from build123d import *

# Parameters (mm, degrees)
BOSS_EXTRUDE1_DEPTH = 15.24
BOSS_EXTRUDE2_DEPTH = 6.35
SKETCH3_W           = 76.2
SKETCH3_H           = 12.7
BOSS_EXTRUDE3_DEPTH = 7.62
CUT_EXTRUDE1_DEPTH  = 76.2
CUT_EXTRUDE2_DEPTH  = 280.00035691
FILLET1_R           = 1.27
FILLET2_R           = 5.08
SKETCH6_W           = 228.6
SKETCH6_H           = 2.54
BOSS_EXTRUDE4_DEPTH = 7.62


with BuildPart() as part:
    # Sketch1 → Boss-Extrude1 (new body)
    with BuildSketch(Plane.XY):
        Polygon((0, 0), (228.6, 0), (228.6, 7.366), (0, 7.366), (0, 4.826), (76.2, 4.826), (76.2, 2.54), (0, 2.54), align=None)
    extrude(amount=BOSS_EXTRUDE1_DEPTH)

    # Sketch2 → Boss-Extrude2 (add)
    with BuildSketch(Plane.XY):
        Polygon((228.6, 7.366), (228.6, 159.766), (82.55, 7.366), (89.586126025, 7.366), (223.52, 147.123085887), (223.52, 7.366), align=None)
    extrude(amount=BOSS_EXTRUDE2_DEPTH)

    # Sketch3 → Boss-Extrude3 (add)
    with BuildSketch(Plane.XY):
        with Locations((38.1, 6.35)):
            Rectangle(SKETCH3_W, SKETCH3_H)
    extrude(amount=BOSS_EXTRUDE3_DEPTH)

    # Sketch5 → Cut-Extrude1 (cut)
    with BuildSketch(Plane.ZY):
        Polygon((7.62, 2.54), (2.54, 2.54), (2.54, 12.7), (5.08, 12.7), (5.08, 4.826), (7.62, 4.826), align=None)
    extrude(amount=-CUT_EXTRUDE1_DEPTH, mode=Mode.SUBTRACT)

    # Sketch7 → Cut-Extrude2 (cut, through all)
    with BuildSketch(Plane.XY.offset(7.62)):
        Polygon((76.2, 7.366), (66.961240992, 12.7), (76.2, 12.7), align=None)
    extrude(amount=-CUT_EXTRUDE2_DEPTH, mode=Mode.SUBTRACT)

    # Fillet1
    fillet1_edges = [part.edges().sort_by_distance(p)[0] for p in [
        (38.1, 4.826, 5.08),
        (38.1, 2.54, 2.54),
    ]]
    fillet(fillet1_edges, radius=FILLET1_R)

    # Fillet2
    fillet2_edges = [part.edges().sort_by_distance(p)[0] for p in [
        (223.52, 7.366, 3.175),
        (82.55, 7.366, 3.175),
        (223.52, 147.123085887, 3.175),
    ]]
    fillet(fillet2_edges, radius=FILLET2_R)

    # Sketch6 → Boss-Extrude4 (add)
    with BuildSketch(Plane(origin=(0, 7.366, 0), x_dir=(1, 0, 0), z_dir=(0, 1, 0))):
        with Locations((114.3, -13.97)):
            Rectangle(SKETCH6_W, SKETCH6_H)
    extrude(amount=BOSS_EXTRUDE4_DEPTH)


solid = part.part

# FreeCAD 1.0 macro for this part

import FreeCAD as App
import Part
import Sketcher
Q = App.Units.Quantity


def edges_at(feature, points):
    """Names of the edges that pass closest to the given points."""
    edges = feature.Shape.Edges
    near = lambda p: min(range(len(edges)), key=lambda i: edges[i].distToShape(Part.Vertex(*p))[0])
    return sorted({f"Edge{near(p) + 1}" for p in points})


def add_polygon(sketch, points):
    """Adds a closed chain of lines whose ends are joined by coincident constraints."""
    first, n = sketch.GeometryCount, len(points)
    for a, b in zip(points, points[1:] + points[:1]):
        sketch.addGeometry(Part.LineSegment(App.Vector(*a, 0), App.Vector(*b, 0)), False)
    for i in range(n):
        sketch.addConstraint(Sketcher.Constraint("Coincident", first + i, 2, first + (i + 1) % n, 1))

doc = App.newDocument("Part")
body = doc.addObject("PartDesign::Body", "Body")

sketch1 = body.newObject("Sketcher::SketchObject", "Sketch")
sketch1.AttachmentSupport = (doc.getObject("XY_Plane"), [""])
sketch1.MapMode = "FlatFace"
add_polygon(sketch1, [(0, 0), (228.6, 0), (228.6, 7.4), (0, 7.4), (0, 4.8), (76.2, 4.8), (76.2, 2.5), (0, 2.5)])
sketch1.addConstraint([
    Sketcher.Constraint("Horizontal", 0),
    Sketcher.Constraint("Vertical", 1),
    Sketcher.Constraint("Horizontal", 2),
    Sketcher.Constraint("Vertical", 3),
    Sketcher.Constraint("Horizontal", 4),
    Sketcher.Constraint("Vertical", 5),
    Sketcher.Constraint("Horizontal", 6),
    Sketcher.Constraint("Vertical", 7),
    Sketcher.Constraint("Coincident", 7, 2, -1, 1),
    Sketcher.Constraint("PointOnObject", 2, 2, -2),
    Sketcher.Constraint("Equal", 3, 7),
    Sketcher.Constraint("DistanceX", 0, 1, 0, 2, Q("9 in")),
    Sketcher.Constraint("DistanceX", 4, 1, 4, 2, Q("3 in")),
    Sketcher.Constraint("DistanceY", 3, 2, 3, 1, Q("0.1 in")),
    Sketcher.Constraint("DistanceY", 1, 1, 1, 2, Q("0.29 in")),
])
pad1 = body.newObject("PartDesign::Pad", "Pad")
pad1.Profile = sketch1
pad1.Length = Q("0.6 in")

sketch2 = body.newObject("Sketcher::SketchObject", "Sketch001")
sketch2.AttachmentSupport = (doc.getObject("XY_Plane"), [""])
sketch2.MapMode = "FlatFace"
add_polygon(sketch2, [(229, 7), (229, 160), (83, 7), (90, 7), (224, 147), (224, 7)])
sketch2.addConstraint([
    Sketcher.Constraint("Vertical", 0),
    Sketcher.Constraint("Horizontal", 2),
    Sketcher.Constraint("Vertical", 4),
    Sketcher.Constraint("Horizontal", 5),
    Sketcher.Constraint("Parallel", 1, 3),
    Sketcher.Constraint("Horizontal", 2, 2, 4, 2),
    Sketcher.Constraint("DistanceY", 0, 1, 0, 2, Q("6 in")),
    Sketcher.Constraint("DistanceX", 5, 1, 5, 2, Q("0.2 in")),
    Sketcher.Constraint("DistanceX", -1, 1, 0, 2, Q("9 in")),
    Sketcher.Constraint("DistanceY", -1, 1, 0, 2, Q("6.29 in")),
    Sketcher.Constraint("DistanceX", -1, 1, 1, 2, Q("3.25 in")),
    Sketcher.Constraint("DistanceX", 2, 1, 2, 2, 7.036126),
])
pad2 = body.newObject("PartDesign::Pad", "Pad001")
pad2.Profile = sketch2
pad2.Length = Q("0.25 in")

sketch3 = body.newObject("Sketcher::SketchObject", "Sketch002")
sketch3.AttachmentSupport = (doc.getObject("XY_Plane"), [""])
sketch3.MapMode = "FlatFace"
add_polygon(sketch3, [(0, 13), (0, 0), (76, 0), (76, 13)])
sketch3.addConstraint([
    Sketcher.Constraint("Vertical", 0),
    Sketcher.Constraint("Horizontal", 1),
    Sketcher.Constraint("Vertical", 2),
    Sketcher.Constraint("Horizontal", 3),
    Sketcher.Constraint("Coincident", 0, 2, -1, 1),
    Sketcher.Constraint("DistanceX", 1, 1, 1, 2, Q("3 in")),
    Sketcher.Constraint("DistanceY", 0, 2, 0, 1, Q("0.5 in")),
])
pad3 = body.newObject("PartDesign::Pad", "Pad002")
pad3.Profile = sketch3
pad3.Length = Q("0.3 in")

sketch4 = body.newObject("Sketcher::SketchObject", "Sketch003")
sketch4.AttachmentSupport = (doc.getObject("YZ_Plane"), [""])
sketch4.MapMode = "FlatFace"
add_polygon(sketch4, [(2.5, 2.5), (2.5, 7.6), (4.8, 7.6), (4.8, 5.1), (12.7, 5.1), (12.7, 2.5)])
sketch4.addConstraint([
    Sketcher.Constraint("Vertical", 0),
    Sketcher.Constraint("Horizontal", 1),
    Sketcher.Constraint("Vertical", 2),
    Sketcher.Constraint("Horizontal", 3),
    Sketcher.Constraint("Vertical", 4),
    Sketcher.Constraint("Horizontal", 5),
    Sketcher.Constraint("Equal", 2, 4),
    Sketcher.Constraint("DistanceX", 5, 2, 5, 1, Q("0.4 in")),
    Sketcher.Constraint("DistanceY", 0, 1, 0, 2, Q("0.2 in")),
    Sketcher.Constraint("DistanceX", 1, 1, 1, 2, Q("0.09 in")),
    Sketcher.Constraint("DistanceX", -1, 1, 0, 2, Q("0.1 in")),
    Sketcher.Constraint("DistanceY", -1, 1, 0, 2, Q("0.3 in")),
])
pocket1 = body.newObject("PartDesign::Pocket", "Pocket")
pocket1.Profile = sketch4
pocket1.Length = Q("3 in")
pocket1.Reversed = True

sketch5 = body.newObject("Sketcher::SketchObject", "Sketch004")
sketch5.AttachmentSupport = (doc.getObject("XY_Plane"), [""])
sketch5.MapMode = "FlatFace"
sketch5.AttachmentOffset = App.Placement(App.Vector(0, 0, 0.3 * 25.4), App.Rotation())
add_polygon(sketch5, [(67, 13), (76, 7), (76, 13)])
sketch5.addConstraint([
    Sketcher.Constraint("Vertical", 1),
    Sketcher.Constraint("Horizontal", 2),
    Sketcher.Constraint("DistanceX", -1, 1, 0, 2, Q("3 in")),
    Sketcher.Constraint("Angle", 0, Q("-30 deg")),
    Sketcher.Constraint("DistanceY", 1, 1, 1, 2, Q("0.21 in")),
    Sketcher.Constraint("DistanceY", -1, 1, 1, 2, Q("0.5 in")),
])
pocket2 = body.newObject("PartDesign::Pocket", "Pocket001")
pocket2.Profile = sketch5
pocket2.Type = "ThroughAll"
doc.recompute()

fillet = body.newObject("PartDesign::Fillet", "Fillet")
fillet.Base = (pocket2, edges_at(pocket2, [(38.1, 4.826, 5.08), (38.1, 2.54, 2.54)]))
fillet.Radius = Q("0.05 in")
doc.recompute()

fillet2 = body.newObject("PartDesign::Fillet", "Fillet001")
fillet2.Base = (fillet, edges_at(fillet, [(223.52, 7.366, 3.175), (82.55, 7.366, 3.175), (223.52, 147.123, 3.175)]))
fillet2.Radius = Q("0.2 in")

sketch6 = body.newObject("Sketcher::SketchObject", "Sketch005")
sketch6.AttachmentSupport = (doc.getObject("XZ_Plane"), [""])
sketch6.MapMode = "FlatFace"
sketch6.AttachmentOffset = App.Placement(App.Vector(0, 0, -0.29 * 25.4), App.Rotation())
add_polygon(sketch6, [(0, 12.7), (0, 15.2), (228.6, 15.2), (228.6, 12.7)])
sketch6.addConstraint([
    Sketcher.Constraint("Vertical", 0),
    Sketcher.Constraint("Horizontal", 1),
    Sketcher.Constraint("Vertical", 2),
    Sketcher.Constraint("Horizontal", 3),
    Sketcher.Constraint("PointOnObject", 0, 2, -2),
    Sketcher.Constraint("DistanceX", 1, 1, 1, 2, Q("9 in")),
    Sketcher.Constraint("DistanceY", 0, 1, 0, 2, Q("0.1 in")),
    Sketcher.Constraint("DistanceY", -1, 1, 0, 2, Q("0.6 in")),
])
pad4 = body.newObject("PartDesign::Pad", "Pad003")
pad4.Profile = sketch6
pad4.Length = Q("0.3 in")
pad4.Reversed = True

doc.recompute()
